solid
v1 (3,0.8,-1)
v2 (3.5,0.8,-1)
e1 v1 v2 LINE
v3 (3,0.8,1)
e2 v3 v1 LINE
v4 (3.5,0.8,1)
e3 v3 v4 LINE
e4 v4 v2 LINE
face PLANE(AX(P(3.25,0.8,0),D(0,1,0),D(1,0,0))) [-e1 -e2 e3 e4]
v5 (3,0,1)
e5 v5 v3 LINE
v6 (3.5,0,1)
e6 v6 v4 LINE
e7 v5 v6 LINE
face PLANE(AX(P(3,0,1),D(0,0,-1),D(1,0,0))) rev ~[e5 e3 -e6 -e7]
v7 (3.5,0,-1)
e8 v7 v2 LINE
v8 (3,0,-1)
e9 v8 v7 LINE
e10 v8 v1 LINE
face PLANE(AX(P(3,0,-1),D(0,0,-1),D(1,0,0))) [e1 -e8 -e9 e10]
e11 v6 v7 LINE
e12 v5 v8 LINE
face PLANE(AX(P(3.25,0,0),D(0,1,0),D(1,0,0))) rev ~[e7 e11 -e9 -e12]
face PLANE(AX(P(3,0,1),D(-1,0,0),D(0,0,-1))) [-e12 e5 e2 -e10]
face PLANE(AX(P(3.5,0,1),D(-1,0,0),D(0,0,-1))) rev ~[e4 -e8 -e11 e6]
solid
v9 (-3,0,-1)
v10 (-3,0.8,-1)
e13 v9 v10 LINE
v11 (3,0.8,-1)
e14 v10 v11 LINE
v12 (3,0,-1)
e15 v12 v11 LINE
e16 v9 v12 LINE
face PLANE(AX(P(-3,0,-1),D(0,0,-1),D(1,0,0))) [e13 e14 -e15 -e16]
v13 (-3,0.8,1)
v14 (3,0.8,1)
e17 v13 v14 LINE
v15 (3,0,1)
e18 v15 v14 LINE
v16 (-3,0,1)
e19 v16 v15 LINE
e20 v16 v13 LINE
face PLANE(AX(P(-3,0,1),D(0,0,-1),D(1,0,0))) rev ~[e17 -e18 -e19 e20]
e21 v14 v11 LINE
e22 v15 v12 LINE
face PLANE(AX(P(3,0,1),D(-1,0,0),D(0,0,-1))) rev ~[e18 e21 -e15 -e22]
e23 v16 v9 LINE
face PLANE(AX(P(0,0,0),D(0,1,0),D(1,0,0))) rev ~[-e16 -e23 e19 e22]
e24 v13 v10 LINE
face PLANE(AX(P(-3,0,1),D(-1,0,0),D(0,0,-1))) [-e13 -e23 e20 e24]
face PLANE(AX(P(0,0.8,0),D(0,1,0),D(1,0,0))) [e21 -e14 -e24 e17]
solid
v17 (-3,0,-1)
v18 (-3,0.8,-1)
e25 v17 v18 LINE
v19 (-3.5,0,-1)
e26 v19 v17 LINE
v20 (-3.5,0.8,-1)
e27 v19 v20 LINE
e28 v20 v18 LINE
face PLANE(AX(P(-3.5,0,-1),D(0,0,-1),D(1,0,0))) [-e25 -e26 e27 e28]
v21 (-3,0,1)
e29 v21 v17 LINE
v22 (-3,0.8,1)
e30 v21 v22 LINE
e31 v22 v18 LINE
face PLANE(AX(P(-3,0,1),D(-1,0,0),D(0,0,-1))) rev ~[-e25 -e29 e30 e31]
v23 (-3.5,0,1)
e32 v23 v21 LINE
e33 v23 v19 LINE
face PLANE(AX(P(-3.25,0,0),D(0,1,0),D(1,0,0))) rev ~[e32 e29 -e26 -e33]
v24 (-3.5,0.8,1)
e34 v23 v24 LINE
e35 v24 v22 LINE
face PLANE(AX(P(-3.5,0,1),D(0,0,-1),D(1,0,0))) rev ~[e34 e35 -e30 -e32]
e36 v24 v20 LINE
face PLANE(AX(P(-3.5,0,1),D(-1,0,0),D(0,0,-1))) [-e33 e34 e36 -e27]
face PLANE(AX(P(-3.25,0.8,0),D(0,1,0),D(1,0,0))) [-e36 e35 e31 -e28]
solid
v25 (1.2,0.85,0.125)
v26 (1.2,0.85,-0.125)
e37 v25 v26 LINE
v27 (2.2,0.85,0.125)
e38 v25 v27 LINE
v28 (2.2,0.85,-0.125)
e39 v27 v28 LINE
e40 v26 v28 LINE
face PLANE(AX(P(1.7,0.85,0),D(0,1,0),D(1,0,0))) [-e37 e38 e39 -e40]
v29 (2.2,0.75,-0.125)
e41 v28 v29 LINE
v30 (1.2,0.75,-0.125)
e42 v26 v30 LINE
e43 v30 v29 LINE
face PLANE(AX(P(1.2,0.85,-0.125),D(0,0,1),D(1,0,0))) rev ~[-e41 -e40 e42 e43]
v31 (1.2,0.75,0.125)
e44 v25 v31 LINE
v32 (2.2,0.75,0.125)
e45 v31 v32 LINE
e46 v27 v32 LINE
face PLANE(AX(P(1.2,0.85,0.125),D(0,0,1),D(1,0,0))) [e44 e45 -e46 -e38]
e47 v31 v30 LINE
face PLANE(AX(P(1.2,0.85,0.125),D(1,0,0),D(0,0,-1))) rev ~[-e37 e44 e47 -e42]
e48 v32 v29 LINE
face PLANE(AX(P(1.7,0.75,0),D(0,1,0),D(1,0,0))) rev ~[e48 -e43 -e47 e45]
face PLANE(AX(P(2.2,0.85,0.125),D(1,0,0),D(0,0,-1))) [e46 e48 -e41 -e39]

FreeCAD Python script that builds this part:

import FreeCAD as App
import Part
import Sketcher

V = App.Vector

doc = App.newDocument("Part")
body = doc.addObject("PartDesign::Body", "Body")

sketch1 = body.newObject("Sketcher::SketchObject", "Sketch")
sketch1.AttachmentSupport = (doc.getObject("XZ_Plane"), [""])
sketch1.MapMode = "FlatFace"
sketch1.addGeometry([
    Part.LineSegment(V(-3, -1, 0), V(-3, 1, 0)),
    Part.LineSegment(V(-3, 1, 0), V(3, 1, 0)),
    Part.LineSegment(V(3, 1, 0), V(3, -1, 0)),
    Part.LineSegment(V(3, -1, 0), V(-3, -1, 0)),
], False)
sketch1.addConstraint([
    Sketcher.Constraint("Coincident", 0, 2, 1, 1),
    Sketcher.Constraint("Coincident", 1, 2, 2, 1),
    Sketcher.Constraint("Coincident", 2, 2, 3, 1),
    Sketcher.Constraint("Coincident", 3, 2, 0, 1),
    Sketcher.Constraint("Vertical", 0),
    Sketcher.Constraint("Horizontal", 1),
    Sketcher.Constraint("Vertical", 2),
    Sketcher.Constraint("Horizontal", 3),
    Sketcher.Constraint("Symmetric", 0, 2, 2, 2, -1, 1),
    Sketcher.Constraint("DistanceX", 1, 1, 1, 2, 6.0),
    Sketcher.Constraint("DistanceY", 0, 1, 0, 2, 2.0),
])
pad1 = body.newObject("PartDesign::Pad", "Pad")
pad1.Profile = sketch1
pad1.Length = 0.8
pad1.Reversed = True
body2 = doc.addObject("PartDesign::Body", "Body001")

sketch2 = body2.newObject("Sketcher::SketchObject", "Sketch001")
sketch2.AttachmentSupport = (doc.getObject("XZ_Plane001"), [""])
sketch2.MapMode = "FlatFace"
sketch2.addGeometry([
    Part.LineSegment(V(-3.5, -1, 0), V(-3.5, 1, 0)),
    Part.LineSegment(V(-3.5, 1, 0), V(-3, 1, 0)),
    Part.LineSegment(V(-3, 1, 0), V(-3, -1, 0)),
    Part.LineSegment(V(-3, -1, 0), V(-3.5, -1, 0)),
], False)
sketch2.addConstraint([
    Sketcher.Constraint("Coincident", 0, 2, 1, 1),
    Sketcher.Constraint("Coincident", 1, 2, 2, 1),
    Sketcher.Constraint("Coincident", 2, 2, 3, 1),
    Sketcher.Constraint("Coincident", 3, 2, 0, 1),
    Sketcher.Constraint("Vertical", 0),
    Sketcher.Constraint("Horizontal", 1),
    Sketcher.Constraint("Vertical", 2),
    Sketcher.Constraint("Horizontal", 3),
    Sketcher.Constraint("DistanceY", 0, 1, 0, 2, 2.0),
    Sketcher.Constraint("DistanceX", 1, 1, 1, 2, 0.5),
    Sketcher.Constraint("DistanceY", -1, 1, 0, 2, 1.0),
    Sketcher.Constraint("DistanceX", 1, 2, -1, 1, 3.0),
])
pad2 = body2.newObject("PartDesign::Pad", "Pad001")
pad2.Profile = sketch2
pad2.Length = 0.8
pad2.Reversed = True
body3 = doc.addObject("PartDesign::Body", "Body002")

sketch3 = body3.newObject("Sketcher::SketchObject", "Sketch002")
sketch3.AttachmentSupport = (doc.getObject("XZ_Plane002"), [""])
sketch3.MapMode = "FlatFace"
sketch3.addGeometry([
    Part.LineSegment(V(3, -1, 0), V(3, 1, 0)),
    Part.LineSegment(V(3, 1, 0), V(3.5, 1, 0)),
    Part.LineSegment(V(3.5, 1, 0), V(3.5, -1, 0)),
    Part.LineSegment(V(3.5, -1, 0), V(3, -1, 0)),
], False)
sketch3.addConstraint([
    Sketcher.Constraint("Coincident", 0, 2, 1, 1),
    Sketcher.Constraint("Coincident", 1, 2, 2, 1),
    Sketcher.Constraint("Coincident", 2, 2, 3, 1),
    Sketcher.Constraint("Coincident", 3, 2, 0, 1),
    Sketcher.Constraint("Vertical", 0),
    Sketcher.Constraint("Horizontal", 1),
    Sketcher.Constraint("Vertical", 2),
    Sketcher.Constraint("Horizontal", 3),
    Sketcher.Constraint("DistanceY", 0, 1, 0, 2, 2.0),
    Sketcher.Constraint("DistanceX", 1, 1, 1, 2, 0.5),
    Sketcher.Constraint("DistanceX", -1, 1, 0, 2, 3.0),
    Sketcher.Constraint("DistanceY", -1, 1, 0, 2, 1.0),
])
pad3 = body3.newObject("PartDesign::Pad", "Pad002")
pad3.Profile = sketch3
pad3.Length = 0.8
pad3.Reversed = True
body4 = doc.addObject("PartDesign::Body", "Body003")

sketch4 = body4.newObject("Sketcher::SketchObject", "Sketch003")
sketch4.AttachmentSupport = (doc.getObject("XZ_Plane003"), [""])
sketch4.MapMode = "FlatFace"
sketch4.AttachmentOffset = App.Placement(V(0, 0, -0.85), App.Rotation())
sketch4.addGeometry([
    Part.LineSegment(V(1.2, -0.125, 0), V(1.2, 0.125, 0)),
    Part.LineSegment(V(1.2, 0.125, 0), V(2.2, 0.125, 0)),
    Part.LineSegment(V(2.2, 0.125, 0), V(2.2, -0.125, 0)),
    Part.LineSegment(V(2.2, -0.125, 0), V(1.2, -0.125, 0)),
], False)
sketch4.addConstraint([
    Sketcher.Constraint("Coincident", 0, 2, 1, 1),
    Sketcher.Constraint("Coincident", 1, 2, 2, 1),
    Sketcher.Constraint("Coincident", 2, 2, 3, 1),
    Sketcher.Constraint("Coincident", 3, 2, 0, 1),
    Sketcher.Constraint("Vertical", 0),
    Sketcher.Constraint("Horizontal", 1),
    Sketcher.Constraint("Vertical", 2),
    Sketcher.Constraint("Horizontal", 3),
    Sketcher.Constraint("DistanceX", 1, 1, 1, 2, 1.0),
    Sketcher.Constraint("DistanceY", 0, 1, 0, 2, 0.25),
    Sketcher.Constraint("DistanceX", -1, 1, 0, 2, 1.2),
    Sketcher.Constraint("DistanceY", -1, 1, 0, 2, 0.125),
])
pad4 = body4.newObject("PartDesign::Pad", "Pad003")
pad4.Profile = sketch4
pad4.Length = 0.1

doc.recompute()
